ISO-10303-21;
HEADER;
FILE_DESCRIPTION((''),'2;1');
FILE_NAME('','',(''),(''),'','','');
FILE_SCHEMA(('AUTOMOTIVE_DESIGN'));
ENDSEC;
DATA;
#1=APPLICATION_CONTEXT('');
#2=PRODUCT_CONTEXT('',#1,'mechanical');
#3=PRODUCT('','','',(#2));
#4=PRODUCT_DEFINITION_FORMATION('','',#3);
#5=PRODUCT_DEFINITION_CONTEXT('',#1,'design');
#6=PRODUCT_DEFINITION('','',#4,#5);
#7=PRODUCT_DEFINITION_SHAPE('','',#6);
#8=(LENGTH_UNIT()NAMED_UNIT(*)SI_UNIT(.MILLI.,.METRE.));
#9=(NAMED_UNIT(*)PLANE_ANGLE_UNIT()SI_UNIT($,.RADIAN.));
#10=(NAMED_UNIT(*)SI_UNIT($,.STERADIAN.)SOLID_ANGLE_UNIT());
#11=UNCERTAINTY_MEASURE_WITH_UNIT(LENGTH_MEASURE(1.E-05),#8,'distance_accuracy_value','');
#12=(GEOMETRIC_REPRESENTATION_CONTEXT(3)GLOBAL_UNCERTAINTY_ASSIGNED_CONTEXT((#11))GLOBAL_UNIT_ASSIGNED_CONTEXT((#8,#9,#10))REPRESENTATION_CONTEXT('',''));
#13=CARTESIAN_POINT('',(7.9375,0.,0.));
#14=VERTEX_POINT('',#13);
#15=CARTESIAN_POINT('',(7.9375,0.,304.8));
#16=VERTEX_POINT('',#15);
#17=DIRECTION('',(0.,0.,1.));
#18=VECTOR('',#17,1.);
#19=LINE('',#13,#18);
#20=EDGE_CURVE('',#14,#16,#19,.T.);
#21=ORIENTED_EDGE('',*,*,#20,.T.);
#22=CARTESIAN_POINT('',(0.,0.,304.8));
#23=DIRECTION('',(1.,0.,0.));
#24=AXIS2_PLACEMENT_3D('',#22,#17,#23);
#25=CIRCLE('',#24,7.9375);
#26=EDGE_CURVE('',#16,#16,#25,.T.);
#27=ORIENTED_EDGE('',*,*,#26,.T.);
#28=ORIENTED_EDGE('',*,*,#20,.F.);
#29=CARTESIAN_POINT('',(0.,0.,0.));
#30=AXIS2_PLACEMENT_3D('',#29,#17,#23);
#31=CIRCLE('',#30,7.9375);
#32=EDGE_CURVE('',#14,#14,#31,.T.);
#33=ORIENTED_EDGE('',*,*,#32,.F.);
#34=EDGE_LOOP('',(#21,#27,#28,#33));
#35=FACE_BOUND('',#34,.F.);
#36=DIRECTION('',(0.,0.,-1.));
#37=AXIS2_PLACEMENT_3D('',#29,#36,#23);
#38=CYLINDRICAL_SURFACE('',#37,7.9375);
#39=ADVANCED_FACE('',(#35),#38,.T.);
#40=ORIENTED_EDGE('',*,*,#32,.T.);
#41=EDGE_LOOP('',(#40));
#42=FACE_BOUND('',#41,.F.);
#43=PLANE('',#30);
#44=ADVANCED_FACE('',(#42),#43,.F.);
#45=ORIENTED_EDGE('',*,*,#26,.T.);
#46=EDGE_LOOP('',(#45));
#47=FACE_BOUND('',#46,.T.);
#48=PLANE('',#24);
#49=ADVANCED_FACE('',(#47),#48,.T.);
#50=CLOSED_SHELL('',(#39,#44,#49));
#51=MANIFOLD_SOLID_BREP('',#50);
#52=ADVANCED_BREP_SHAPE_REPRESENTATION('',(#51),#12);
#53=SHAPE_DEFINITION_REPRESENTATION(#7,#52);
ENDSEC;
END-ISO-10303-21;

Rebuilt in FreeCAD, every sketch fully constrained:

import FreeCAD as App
import Part
import Sketcher
Q = App.Units.Quantity

doc = App.newDocument("Part")
params = doc.addObject("Spreadsheet::Sheet", "Params")
for row, (alias, value) in enumerate([
    ("sketch1_diameter", "0.625 in"),
    ("pad1_length", "12 in"),
], start=1):
    params.set(f"A{row}", alias)
    params.set(f"B{row}", "=" + value)
    params.setAlias(f"B{row}", alias)

body = doc.addObject("PartDesign::Body", "Body")

sketch1 = body.newObject("Sketcher::SketchObject", "Sketch")
sketch1.AttachmentSupport = (doc.getObject("XY_Plane"), [""])
sketch1.MapMode = "FlatFace"
sketch1.addGeometry(Part.Circle(App.Vector(0, 0, 0), App.Vector(0, 0, 1), 8), False)
sketch1.addConstraint(Sketcher.Constraint("Coincident", 0, 3, -1, 1))
sketch1.addConstraint(Sketcher.Constraint("Diameter", 0, Q("0.625 in")))
sketch1.setExpression("Constraints[1]", "Params.sketch1_diameter")
pad1 = body.newObject("PartDesign::Pad", "Pad")
pad1.Profile = sketch1
pad1.setExpression("Length", "Params.pad1_length")

doc.recompute()
